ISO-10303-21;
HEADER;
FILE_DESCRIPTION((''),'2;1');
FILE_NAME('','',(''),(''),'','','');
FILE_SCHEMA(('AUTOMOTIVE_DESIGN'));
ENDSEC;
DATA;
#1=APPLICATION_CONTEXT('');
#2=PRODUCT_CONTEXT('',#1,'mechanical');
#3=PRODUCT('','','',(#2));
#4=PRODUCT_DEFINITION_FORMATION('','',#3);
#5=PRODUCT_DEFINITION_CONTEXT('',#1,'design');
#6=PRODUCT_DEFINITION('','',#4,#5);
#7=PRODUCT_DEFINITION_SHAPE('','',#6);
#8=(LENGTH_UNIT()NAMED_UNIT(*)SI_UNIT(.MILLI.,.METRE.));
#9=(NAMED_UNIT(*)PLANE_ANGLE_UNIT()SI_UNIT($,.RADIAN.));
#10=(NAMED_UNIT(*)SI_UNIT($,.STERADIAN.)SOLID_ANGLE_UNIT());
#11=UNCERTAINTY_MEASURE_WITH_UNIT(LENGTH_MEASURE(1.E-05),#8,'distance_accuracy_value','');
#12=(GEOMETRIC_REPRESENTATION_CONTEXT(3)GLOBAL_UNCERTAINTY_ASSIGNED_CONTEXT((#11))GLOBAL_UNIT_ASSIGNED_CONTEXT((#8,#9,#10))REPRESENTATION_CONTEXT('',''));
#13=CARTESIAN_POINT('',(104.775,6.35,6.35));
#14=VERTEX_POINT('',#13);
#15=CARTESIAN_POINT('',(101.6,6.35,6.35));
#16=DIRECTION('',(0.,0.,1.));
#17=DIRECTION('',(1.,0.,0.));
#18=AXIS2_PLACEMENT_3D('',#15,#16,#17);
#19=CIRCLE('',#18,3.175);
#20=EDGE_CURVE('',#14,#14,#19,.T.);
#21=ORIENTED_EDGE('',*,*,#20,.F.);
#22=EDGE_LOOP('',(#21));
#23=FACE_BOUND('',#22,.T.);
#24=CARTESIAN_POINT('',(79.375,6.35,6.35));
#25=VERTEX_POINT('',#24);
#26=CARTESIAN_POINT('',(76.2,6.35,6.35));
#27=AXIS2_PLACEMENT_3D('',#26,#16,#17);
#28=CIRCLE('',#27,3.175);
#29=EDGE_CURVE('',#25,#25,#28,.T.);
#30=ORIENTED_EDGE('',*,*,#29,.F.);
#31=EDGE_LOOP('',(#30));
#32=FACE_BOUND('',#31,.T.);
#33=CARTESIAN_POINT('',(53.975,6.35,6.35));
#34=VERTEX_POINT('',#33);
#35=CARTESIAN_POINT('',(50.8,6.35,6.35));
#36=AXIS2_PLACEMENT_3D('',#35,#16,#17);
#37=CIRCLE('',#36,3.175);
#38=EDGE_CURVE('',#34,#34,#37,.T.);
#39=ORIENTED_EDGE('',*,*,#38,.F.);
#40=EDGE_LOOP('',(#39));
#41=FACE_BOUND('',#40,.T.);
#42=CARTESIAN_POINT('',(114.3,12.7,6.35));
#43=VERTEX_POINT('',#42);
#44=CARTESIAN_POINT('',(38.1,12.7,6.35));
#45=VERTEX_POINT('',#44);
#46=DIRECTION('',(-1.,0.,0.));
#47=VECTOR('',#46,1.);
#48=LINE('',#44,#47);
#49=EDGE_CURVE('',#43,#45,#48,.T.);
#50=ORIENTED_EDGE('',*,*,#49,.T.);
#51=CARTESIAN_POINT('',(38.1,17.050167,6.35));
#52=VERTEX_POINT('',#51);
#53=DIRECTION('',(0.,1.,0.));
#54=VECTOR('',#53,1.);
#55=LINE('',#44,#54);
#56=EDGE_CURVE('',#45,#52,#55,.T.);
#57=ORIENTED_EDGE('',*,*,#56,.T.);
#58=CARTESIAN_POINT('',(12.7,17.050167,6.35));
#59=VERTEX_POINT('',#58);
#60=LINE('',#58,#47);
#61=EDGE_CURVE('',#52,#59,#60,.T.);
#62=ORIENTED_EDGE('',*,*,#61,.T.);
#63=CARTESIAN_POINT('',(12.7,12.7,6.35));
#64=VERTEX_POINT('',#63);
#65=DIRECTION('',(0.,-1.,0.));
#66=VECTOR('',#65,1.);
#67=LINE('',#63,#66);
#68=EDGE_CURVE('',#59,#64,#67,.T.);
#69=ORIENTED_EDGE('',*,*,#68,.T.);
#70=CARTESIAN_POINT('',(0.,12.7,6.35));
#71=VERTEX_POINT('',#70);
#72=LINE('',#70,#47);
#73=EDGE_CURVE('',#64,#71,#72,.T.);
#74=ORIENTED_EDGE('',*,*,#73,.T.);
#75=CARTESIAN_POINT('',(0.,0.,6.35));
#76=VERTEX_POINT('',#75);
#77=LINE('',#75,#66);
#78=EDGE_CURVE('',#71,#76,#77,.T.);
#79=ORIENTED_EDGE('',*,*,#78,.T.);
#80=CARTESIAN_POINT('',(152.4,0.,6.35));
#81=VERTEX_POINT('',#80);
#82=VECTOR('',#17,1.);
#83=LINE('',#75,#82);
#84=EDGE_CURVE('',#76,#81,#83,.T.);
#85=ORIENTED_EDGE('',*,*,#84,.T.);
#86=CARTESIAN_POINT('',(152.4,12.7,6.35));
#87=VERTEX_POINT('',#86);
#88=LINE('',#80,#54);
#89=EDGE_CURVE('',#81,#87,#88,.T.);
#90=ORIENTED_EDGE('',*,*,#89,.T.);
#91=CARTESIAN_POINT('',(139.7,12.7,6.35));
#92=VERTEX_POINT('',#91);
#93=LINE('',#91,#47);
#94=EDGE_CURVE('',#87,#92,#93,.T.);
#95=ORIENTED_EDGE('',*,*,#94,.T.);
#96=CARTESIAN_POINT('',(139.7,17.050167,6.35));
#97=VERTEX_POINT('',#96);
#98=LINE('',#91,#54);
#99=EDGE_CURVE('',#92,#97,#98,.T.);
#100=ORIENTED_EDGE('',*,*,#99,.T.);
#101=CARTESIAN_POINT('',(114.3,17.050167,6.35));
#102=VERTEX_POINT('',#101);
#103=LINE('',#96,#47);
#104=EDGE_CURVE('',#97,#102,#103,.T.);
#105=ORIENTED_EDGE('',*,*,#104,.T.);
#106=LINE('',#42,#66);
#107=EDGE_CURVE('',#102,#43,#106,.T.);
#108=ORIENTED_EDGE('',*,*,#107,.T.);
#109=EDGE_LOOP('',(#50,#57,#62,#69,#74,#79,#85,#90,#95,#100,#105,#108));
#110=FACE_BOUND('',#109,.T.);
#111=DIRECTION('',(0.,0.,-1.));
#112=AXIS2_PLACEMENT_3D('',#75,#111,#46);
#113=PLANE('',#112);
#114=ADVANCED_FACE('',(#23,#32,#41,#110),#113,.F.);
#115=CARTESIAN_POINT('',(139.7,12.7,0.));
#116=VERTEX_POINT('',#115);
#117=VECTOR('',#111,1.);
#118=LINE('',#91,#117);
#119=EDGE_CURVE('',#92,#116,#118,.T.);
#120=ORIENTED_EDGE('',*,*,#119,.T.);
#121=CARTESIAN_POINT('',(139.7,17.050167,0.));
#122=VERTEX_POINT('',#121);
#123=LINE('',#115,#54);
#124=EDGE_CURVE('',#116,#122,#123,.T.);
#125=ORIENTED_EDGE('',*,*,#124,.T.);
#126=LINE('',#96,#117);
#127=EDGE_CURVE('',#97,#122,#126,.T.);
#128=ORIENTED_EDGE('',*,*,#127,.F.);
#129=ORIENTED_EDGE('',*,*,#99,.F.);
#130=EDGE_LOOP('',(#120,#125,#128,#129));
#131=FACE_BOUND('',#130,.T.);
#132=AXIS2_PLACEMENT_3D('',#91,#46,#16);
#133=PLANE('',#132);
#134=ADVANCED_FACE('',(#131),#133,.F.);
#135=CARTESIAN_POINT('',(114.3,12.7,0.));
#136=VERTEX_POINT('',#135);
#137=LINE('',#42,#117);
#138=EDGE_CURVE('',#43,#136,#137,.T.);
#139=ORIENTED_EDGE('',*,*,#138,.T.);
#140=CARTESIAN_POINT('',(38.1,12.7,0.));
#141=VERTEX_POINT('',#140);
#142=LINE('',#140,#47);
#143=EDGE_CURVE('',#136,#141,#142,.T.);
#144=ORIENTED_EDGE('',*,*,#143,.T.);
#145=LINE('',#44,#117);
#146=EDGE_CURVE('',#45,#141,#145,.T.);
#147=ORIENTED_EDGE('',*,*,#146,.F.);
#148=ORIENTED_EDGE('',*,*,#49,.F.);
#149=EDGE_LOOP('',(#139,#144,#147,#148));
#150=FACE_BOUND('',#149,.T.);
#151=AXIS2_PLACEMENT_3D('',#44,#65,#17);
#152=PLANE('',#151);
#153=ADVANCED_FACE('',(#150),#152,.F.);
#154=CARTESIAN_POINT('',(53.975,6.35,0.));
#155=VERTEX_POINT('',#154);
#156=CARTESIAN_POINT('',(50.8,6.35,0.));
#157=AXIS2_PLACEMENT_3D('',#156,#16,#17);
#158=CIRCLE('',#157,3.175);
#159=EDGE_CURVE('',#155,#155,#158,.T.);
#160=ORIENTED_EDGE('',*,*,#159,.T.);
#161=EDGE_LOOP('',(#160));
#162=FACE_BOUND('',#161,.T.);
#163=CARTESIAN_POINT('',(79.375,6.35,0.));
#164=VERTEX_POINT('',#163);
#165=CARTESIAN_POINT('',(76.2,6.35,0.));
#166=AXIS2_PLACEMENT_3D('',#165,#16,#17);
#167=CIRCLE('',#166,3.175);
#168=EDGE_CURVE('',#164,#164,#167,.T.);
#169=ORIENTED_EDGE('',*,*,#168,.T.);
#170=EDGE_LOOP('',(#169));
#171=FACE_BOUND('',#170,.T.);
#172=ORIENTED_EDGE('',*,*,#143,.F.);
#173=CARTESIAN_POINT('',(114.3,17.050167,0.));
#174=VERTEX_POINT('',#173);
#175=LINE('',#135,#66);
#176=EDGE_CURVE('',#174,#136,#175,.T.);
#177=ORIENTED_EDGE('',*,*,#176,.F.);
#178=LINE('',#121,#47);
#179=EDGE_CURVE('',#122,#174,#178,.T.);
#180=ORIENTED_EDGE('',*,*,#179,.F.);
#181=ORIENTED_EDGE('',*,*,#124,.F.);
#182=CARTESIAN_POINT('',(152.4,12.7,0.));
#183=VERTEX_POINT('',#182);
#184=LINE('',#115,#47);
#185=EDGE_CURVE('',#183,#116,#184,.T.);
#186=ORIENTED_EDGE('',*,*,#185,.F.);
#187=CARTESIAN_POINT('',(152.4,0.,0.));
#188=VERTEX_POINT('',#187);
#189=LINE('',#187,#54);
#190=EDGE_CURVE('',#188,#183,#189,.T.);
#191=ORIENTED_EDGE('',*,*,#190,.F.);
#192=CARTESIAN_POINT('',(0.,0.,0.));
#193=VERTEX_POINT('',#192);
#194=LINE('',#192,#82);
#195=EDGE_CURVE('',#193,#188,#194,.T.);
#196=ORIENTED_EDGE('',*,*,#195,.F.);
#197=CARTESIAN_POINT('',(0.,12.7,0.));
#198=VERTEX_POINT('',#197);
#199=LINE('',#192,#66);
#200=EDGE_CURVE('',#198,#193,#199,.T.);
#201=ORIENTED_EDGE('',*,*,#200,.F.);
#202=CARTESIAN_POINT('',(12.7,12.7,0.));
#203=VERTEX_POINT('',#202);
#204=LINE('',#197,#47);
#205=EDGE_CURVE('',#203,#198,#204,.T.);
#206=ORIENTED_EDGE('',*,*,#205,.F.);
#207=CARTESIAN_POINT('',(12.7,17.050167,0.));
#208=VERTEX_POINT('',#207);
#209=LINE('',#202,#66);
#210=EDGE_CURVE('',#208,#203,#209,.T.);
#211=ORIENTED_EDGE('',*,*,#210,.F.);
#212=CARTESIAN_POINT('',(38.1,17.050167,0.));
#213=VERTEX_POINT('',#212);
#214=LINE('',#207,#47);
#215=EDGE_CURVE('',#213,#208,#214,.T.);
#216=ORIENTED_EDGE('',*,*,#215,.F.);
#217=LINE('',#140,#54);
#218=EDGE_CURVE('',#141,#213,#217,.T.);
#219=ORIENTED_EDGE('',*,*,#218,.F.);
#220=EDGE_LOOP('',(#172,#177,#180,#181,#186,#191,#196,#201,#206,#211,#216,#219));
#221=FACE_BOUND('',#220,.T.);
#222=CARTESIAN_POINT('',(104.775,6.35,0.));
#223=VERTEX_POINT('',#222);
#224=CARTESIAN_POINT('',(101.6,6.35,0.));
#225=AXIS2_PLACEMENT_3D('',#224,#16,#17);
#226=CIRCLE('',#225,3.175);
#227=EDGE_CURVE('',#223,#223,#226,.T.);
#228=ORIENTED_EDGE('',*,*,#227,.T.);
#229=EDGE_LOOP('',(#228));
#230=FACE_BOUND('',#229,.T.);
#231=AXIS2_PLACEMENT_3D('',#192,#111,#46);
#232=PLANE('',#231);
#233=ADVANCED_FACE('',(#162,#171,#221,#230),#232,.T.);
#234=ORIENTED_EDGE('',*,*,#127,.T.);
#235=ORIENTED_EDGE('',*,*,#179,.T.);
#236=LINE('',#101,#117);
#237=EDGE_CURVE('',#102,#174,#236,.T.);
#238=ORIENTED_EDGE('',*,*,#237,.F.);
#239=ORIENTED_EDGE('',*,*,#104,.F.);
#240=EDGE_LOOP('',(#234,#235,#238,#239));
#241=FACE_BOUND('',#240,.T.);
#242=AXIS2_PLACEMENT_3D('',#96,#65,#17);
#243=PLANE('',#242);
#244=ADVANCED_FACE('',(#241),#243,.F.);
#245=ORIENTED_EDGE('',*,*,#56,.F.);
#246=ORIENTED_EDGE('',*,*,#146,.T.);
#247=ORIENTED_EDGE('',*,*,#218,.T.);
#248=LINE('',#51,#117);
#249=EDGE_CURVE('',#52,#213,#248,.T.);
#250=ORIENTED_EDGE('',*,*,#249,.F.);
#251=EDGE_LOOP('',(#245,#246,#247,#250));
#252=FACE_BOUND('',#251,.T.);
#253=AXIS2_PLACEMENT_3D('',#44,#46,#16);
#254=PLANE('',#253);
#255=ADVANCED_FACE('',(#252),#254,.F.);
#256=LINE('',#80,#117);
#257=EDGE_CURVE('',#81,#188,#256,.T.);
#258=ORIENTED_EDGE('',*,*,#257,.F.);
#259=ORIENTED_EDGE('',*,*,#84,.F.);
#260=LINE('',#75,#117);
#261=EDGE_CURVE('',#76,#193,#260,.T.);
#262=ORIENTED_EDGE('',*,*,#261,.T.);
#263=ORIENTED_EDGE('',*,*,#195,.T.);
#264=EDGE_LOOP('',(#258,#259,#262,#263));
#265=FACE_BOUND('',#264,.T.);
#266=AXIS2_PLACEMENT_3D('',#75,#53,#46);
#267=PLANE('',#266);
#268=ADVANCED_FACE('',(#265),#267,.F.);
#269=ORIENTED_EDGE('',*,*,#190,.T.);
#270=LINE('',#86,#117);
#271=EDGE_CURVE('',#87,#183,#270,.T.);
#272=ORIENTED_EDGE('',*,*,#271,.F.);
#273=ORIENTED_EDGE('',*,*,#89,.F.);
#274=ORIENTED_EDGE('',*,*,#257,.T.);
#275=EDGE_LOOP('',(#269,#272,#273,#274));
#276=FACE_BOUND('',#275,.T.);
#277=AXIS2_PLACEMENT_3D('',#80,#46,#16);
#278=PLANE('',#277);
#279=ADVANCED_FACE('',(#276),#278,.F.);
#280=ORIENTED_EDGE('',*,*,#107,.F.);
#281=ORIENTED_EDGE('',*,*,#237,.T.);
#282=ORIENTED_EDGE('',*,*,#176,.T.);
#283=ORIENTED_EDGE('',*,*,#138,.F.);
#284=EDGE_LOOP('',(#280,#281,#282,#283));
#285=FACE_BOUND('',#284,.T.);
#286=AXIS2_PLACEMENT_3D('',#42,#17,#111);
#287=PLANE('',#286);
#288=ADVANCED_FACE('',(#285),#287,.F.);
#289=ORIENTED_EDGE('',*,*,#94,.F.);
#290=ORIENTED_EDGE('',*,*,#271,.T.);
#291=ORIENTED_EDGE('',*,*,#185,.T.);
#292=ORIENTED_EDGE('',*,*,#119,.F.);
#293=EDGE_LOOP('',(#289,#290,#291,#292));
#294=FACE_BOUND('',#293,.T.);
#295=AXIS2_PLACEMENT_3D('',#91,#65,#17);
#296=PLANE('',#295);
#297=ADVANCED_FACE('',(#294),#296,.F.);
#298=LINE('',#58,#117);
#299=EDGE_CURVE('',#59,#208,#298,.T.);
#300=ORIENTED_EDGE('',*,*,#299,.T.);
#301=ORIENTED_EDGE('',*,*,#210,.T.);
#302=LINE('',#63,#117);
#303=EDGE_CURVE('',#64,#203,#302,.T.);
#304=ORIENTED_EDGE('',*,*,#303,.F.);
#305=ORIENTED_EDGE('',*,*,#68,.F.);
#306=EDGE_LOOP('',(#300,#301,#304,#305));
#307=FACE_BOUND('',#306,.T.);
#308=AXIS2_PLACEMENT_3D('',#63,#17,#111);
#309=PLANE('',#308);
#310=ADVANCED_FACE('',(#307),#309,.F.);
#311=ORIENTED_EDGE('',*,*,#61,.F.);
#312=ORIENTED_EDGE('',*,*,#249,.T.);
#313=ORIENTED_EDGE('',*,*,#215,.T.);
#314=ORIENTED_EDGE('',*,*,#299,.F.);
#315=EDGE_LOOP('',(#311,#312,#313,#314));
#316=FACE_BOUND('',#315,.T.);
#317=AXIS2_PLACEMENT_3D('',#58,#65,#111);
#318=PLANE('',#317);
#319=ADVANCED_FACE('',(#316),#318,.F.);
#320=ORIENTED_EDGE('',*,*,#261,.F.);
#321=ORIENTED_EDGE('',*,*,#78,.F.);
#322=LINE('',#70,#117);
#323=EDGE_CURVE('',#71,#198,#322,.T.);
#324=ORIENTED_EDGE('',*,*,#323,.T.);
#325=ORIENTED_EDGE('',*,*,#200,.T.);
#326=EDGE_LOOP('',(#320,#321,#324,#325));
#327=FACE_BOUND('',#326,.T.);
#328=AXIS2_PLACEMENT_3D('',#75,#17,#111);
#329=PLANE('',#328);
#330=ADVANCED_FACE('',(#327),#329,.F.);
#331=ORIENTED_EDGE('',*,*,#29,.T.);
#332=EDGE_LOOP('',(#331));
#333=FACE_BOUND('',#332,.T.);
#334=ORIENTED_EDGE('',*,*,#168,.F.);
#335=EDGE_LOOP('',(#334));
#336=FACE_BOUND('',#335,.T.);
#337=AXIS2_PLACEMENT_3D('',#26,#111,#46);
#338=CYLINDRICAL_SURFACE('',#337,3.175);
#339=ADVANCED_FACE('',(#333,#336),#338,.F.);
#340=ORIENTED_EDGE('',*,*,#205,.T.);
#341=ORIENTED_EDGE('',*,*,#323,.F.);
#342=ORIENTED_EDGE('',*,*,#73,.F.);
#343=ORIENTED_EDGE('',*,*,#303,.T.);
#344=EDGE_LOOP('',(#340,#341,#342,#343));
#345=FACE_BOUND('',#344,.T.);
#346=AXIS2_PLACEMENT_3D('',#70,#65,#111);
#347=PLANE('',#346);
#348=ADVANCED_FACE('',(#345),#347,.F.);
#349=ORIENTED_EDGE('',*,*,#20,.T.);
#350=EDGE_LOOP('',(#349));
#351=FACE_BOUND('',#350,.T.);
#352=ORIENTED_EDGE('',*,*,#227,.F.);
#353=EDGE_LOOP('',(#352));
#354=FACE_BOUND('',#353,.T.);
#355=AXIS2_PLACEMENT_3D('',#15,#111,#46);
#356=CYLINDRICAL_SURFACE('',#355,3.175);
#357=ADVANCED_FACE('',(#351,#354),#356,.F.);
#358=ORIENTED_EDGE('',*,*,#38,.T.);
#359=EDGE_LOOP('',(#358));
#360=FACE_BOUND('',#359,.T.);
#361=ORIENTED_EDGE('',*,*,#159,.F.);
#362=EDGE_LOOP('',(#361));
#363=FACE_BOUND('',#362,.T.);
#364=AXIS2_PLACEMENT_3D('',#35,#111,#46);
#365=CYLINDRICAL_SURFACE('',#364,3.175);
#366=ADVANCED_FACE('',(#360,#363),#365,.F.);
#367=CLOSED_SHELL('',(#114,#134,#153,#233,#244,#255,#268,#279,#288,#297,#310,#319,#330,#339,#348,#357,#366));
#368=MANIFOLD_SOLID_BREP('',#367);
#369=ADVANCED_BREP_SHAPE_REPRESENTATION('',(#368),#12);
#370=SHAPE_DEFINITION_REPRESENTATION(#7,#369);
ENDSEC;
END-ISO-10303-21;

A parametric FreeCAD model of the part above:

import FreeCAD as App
import Part
import Sketcher
Q = App.Units.Quantity

doc = App.newDocument("Part")
body = doc.addObject("PartDesign::Body", "Body")

# Sketch on XY plane
sketch1 = body.newObject("Sketcher::SketchObject", "Sketch")
sketch1.AttachmentSupport = (doc.getObject("XY_Plane"), [""])
sketch1.MapMode = "FlatFace"
sketch1.addGeometry(Part.LineSegment(App.Vector(114.3, 12.7, 0), App.Vector(38.1, 12.7, 0)), False)
sketch1.addGeometry(Part.LineSegment(App.Vector(38.1, 12.7, 0), App.Vector(38.1, 17.050167, 0)), False)
sketch1.addGeometry(Part.LineSegment(App.Vector(38.1, 17.050167, 0), App.Vector(12.7, 17.050167, 0)), False)
sketch1.addGeometry(Part.LineSegment(App.Vector(12.7, 17.050167, 0), App.Vector(12.7, 12.7, 0)), False)
sketch1.addGeometry(Part.LineSegment(App.Vector(12.7, 12.7, 0), App.Vector(0, 12.7, 0)), False)
sketch1.addGeometry(Part.LineSegment(App.Vector(0, 12.7, 0), App.Vector(0, 0, 0)), False)
sketch1.addGeometry(Part.LineSegment(App.Vector(0, 0, 0), App.Vector(152.4, 0, 0)), False)
sketch1.addGeometry(Part.LineSegment(App.Vector(152.4, 0, 0), App.Vector(152.4, 12.7, 0)), False)
sketch1.addGeometry(Part.LineSegment(App.Vector(152.4, 12.7, 0), App.Vector(139.7, 12.7, 0)), False)
sketch1.addGeometry(Part.LineSegment(App.Vector(139.7, 12.7, 0), App.Vector(139.7, 17.050167, 0)), False)
sketch1.addGeometry(Part.LineSegment(App.Vector(139.7, 17.050167, 0), App.Vector(114.3, 17.050167, 0)), False)
sketch1.addGeometry(Part.LineSegment(App.Vector(114.3, 17.050167, 0), App.Vector(114.3, 12.7, 0)), False)
sketch1.addGeometry(Part.Circle(App.Vector(101.6, 6.35, 0), App.Vector(0, 0, 1), 3.175), False)
sketch1.addGeometry(Part.Circle(App.Vector(76.2, 6.35, 0), App.Vector(0, 0, 1), 3.175), False)
sketch1.addGeometry(Part.Circle(App.Vector(50.8, 6.35, 0), App.Vector(0, 0, 1), 3.175), False)
sketch1.addConstraint(Sketcher.Constraint("Coincident", 0, 2, 1, 1))
sketch1.addConstraint(Sketcher.Constraint("Coincident", 1, 2, 2, 1))
sketch1.addConstraint(Sketcher.Constraint("Coincident", 2, 2, 3, 1))
sketch1.addConstraint(Sketcher.Constraint("Coincident", 3, 2, 4, 1))
sketch1.addConstraint(Sketcher.Constraint("Coincident", 4, 2, 5, 1))
sketch1.addConstraint(Sketcher.Constraint("Coincident", 5, 2, 6, 1))
sketch1.addConstraint(Sketcher.Constraint("Coincident", 6, 2, 7, 1))
sketch1.addConstraint(Sketcher.Constraint("Coincident", 7, 2, 8, 1))
sketch1.addConstraint(Sketcher.Constraint("Coincident", 8, 2, 9, 1))
sketch1.addConstraint(Sketcher.Constraint("Coincident", 9, 2, 10, 1))
sketch1.addConstraint(Sketcher.Constraint("Coincident", 10, 2, 11, 1))
sketch1.addConstraint(Sketcher.Constraint("Coincident", 11, 2, 0, 1))
sketch1.addConstraint(Sketcher.Constraint("Horizontal", 0))
sketch1.addConstraint(Sketcher.Constraint("Vertical", 1))
sketch1.addConstraint(Sketcher.Constraint("Horizontal", 2))
sketch1.addConstraint(Sketcher.Constraint("Vertical", 3))
sketch1.addConstraint(Sketcher.Constraint("Horizontal", 4))
sketch1.addConstraint(Sketcher.Constraint("Vertical", 5))
sketch1.addConstraint(Sketcher.Constraint("Horizontal", 6))
sketch1.addConstraint(Sketcher.Constraint("Vertical", 7))
sketch1.addConstraint(Sketcher.Constraint("Horizontal", 8))
sketch1.addConstraint(Sketcher.Constraint("Vertical", 9))
sketch1.addConstraint(Sketcher.Constraint("Horizontal", 10))
sketch1.addConstraint(Sketcher.Constraint("Vertical", 11))
sketch1.addConstraint(Sketcher.Constraint("Coincident", 5, 2, -1, 1))
sketch1.addConstraint(Sketcher.Constraint("Equal", 12, 13))
sketch1.addConstraint(Sketcher.Constraint("Equal", 13, 14))
sketch1.addConstraint(Sketcher.Constraint("Horizontal", 12, 3, 13, 3))
sketch1.addConstraint(Sketcher.Constraint("Horizontal", 13, 3, 14, 3))
sketch1.addConstraint(Sketcher.Constraint("Horizontal", 0, 2, 3, 2))
sketch1.addConstraint(Sketcher.Constraint("Horizontal", 4, 2, 7, 2))
sketch1.addConstraint(Sketcher.Constraint("Horizontal", 2, 2, 9, 2))
sketch1.addConstraint(Sketcher.Constraint("Equal", 4, 8))
sketch1.addConstraint(Sketcher.Constraint("Equal", 2, 10))
sketch1.addConstraint(Sketcher.Constraint("Equal", 8, 5))
sketch1.addConstraint(Sketcher.Constraint("Diameter", 12, Q("0.25 in")))
sketch1.addConstraint(Sketcher.Constraint("DistanceX", 0, 2, 0, 1, Q("3 in")))
sketch1.addConstraint(Sketcher.Constraint("DistanceX", 2, 2, 2, 1, Q("1 in")))
sketch1.addConstraint(Sketcher.Constraint("DistanceX", 6, 1, 6, 2, Q("6 in")))
sketch1.addConstraint(Sketcher.Constraint("DistanceX", -1, 1, 12, 3, Q("4 in")))
sketch1.addConstraint(Sketcher.Constraint("DistanceX", -1, 1, 13, 3, Q("3 in")))
sketch1.addConstraint(Sketcher.Constraint("DistanceX", -1, 1, 14, 3, Q("2 in")))
sketch1.addConstraint(Sketcher.Constraint("DistanceY", -1, 1, 12, 3, Q("0.25 in")))
sketch1.addConstraint(Sketcher.Constraint("DistanceY", 1, 1, 1, 2, 4.350167))
pad1 = body.newObject("PartDesign::Pad", "Pad")
pad1.Profile = sketch1
pad1.Length = Q("0.25 in")

doc.recompute()
